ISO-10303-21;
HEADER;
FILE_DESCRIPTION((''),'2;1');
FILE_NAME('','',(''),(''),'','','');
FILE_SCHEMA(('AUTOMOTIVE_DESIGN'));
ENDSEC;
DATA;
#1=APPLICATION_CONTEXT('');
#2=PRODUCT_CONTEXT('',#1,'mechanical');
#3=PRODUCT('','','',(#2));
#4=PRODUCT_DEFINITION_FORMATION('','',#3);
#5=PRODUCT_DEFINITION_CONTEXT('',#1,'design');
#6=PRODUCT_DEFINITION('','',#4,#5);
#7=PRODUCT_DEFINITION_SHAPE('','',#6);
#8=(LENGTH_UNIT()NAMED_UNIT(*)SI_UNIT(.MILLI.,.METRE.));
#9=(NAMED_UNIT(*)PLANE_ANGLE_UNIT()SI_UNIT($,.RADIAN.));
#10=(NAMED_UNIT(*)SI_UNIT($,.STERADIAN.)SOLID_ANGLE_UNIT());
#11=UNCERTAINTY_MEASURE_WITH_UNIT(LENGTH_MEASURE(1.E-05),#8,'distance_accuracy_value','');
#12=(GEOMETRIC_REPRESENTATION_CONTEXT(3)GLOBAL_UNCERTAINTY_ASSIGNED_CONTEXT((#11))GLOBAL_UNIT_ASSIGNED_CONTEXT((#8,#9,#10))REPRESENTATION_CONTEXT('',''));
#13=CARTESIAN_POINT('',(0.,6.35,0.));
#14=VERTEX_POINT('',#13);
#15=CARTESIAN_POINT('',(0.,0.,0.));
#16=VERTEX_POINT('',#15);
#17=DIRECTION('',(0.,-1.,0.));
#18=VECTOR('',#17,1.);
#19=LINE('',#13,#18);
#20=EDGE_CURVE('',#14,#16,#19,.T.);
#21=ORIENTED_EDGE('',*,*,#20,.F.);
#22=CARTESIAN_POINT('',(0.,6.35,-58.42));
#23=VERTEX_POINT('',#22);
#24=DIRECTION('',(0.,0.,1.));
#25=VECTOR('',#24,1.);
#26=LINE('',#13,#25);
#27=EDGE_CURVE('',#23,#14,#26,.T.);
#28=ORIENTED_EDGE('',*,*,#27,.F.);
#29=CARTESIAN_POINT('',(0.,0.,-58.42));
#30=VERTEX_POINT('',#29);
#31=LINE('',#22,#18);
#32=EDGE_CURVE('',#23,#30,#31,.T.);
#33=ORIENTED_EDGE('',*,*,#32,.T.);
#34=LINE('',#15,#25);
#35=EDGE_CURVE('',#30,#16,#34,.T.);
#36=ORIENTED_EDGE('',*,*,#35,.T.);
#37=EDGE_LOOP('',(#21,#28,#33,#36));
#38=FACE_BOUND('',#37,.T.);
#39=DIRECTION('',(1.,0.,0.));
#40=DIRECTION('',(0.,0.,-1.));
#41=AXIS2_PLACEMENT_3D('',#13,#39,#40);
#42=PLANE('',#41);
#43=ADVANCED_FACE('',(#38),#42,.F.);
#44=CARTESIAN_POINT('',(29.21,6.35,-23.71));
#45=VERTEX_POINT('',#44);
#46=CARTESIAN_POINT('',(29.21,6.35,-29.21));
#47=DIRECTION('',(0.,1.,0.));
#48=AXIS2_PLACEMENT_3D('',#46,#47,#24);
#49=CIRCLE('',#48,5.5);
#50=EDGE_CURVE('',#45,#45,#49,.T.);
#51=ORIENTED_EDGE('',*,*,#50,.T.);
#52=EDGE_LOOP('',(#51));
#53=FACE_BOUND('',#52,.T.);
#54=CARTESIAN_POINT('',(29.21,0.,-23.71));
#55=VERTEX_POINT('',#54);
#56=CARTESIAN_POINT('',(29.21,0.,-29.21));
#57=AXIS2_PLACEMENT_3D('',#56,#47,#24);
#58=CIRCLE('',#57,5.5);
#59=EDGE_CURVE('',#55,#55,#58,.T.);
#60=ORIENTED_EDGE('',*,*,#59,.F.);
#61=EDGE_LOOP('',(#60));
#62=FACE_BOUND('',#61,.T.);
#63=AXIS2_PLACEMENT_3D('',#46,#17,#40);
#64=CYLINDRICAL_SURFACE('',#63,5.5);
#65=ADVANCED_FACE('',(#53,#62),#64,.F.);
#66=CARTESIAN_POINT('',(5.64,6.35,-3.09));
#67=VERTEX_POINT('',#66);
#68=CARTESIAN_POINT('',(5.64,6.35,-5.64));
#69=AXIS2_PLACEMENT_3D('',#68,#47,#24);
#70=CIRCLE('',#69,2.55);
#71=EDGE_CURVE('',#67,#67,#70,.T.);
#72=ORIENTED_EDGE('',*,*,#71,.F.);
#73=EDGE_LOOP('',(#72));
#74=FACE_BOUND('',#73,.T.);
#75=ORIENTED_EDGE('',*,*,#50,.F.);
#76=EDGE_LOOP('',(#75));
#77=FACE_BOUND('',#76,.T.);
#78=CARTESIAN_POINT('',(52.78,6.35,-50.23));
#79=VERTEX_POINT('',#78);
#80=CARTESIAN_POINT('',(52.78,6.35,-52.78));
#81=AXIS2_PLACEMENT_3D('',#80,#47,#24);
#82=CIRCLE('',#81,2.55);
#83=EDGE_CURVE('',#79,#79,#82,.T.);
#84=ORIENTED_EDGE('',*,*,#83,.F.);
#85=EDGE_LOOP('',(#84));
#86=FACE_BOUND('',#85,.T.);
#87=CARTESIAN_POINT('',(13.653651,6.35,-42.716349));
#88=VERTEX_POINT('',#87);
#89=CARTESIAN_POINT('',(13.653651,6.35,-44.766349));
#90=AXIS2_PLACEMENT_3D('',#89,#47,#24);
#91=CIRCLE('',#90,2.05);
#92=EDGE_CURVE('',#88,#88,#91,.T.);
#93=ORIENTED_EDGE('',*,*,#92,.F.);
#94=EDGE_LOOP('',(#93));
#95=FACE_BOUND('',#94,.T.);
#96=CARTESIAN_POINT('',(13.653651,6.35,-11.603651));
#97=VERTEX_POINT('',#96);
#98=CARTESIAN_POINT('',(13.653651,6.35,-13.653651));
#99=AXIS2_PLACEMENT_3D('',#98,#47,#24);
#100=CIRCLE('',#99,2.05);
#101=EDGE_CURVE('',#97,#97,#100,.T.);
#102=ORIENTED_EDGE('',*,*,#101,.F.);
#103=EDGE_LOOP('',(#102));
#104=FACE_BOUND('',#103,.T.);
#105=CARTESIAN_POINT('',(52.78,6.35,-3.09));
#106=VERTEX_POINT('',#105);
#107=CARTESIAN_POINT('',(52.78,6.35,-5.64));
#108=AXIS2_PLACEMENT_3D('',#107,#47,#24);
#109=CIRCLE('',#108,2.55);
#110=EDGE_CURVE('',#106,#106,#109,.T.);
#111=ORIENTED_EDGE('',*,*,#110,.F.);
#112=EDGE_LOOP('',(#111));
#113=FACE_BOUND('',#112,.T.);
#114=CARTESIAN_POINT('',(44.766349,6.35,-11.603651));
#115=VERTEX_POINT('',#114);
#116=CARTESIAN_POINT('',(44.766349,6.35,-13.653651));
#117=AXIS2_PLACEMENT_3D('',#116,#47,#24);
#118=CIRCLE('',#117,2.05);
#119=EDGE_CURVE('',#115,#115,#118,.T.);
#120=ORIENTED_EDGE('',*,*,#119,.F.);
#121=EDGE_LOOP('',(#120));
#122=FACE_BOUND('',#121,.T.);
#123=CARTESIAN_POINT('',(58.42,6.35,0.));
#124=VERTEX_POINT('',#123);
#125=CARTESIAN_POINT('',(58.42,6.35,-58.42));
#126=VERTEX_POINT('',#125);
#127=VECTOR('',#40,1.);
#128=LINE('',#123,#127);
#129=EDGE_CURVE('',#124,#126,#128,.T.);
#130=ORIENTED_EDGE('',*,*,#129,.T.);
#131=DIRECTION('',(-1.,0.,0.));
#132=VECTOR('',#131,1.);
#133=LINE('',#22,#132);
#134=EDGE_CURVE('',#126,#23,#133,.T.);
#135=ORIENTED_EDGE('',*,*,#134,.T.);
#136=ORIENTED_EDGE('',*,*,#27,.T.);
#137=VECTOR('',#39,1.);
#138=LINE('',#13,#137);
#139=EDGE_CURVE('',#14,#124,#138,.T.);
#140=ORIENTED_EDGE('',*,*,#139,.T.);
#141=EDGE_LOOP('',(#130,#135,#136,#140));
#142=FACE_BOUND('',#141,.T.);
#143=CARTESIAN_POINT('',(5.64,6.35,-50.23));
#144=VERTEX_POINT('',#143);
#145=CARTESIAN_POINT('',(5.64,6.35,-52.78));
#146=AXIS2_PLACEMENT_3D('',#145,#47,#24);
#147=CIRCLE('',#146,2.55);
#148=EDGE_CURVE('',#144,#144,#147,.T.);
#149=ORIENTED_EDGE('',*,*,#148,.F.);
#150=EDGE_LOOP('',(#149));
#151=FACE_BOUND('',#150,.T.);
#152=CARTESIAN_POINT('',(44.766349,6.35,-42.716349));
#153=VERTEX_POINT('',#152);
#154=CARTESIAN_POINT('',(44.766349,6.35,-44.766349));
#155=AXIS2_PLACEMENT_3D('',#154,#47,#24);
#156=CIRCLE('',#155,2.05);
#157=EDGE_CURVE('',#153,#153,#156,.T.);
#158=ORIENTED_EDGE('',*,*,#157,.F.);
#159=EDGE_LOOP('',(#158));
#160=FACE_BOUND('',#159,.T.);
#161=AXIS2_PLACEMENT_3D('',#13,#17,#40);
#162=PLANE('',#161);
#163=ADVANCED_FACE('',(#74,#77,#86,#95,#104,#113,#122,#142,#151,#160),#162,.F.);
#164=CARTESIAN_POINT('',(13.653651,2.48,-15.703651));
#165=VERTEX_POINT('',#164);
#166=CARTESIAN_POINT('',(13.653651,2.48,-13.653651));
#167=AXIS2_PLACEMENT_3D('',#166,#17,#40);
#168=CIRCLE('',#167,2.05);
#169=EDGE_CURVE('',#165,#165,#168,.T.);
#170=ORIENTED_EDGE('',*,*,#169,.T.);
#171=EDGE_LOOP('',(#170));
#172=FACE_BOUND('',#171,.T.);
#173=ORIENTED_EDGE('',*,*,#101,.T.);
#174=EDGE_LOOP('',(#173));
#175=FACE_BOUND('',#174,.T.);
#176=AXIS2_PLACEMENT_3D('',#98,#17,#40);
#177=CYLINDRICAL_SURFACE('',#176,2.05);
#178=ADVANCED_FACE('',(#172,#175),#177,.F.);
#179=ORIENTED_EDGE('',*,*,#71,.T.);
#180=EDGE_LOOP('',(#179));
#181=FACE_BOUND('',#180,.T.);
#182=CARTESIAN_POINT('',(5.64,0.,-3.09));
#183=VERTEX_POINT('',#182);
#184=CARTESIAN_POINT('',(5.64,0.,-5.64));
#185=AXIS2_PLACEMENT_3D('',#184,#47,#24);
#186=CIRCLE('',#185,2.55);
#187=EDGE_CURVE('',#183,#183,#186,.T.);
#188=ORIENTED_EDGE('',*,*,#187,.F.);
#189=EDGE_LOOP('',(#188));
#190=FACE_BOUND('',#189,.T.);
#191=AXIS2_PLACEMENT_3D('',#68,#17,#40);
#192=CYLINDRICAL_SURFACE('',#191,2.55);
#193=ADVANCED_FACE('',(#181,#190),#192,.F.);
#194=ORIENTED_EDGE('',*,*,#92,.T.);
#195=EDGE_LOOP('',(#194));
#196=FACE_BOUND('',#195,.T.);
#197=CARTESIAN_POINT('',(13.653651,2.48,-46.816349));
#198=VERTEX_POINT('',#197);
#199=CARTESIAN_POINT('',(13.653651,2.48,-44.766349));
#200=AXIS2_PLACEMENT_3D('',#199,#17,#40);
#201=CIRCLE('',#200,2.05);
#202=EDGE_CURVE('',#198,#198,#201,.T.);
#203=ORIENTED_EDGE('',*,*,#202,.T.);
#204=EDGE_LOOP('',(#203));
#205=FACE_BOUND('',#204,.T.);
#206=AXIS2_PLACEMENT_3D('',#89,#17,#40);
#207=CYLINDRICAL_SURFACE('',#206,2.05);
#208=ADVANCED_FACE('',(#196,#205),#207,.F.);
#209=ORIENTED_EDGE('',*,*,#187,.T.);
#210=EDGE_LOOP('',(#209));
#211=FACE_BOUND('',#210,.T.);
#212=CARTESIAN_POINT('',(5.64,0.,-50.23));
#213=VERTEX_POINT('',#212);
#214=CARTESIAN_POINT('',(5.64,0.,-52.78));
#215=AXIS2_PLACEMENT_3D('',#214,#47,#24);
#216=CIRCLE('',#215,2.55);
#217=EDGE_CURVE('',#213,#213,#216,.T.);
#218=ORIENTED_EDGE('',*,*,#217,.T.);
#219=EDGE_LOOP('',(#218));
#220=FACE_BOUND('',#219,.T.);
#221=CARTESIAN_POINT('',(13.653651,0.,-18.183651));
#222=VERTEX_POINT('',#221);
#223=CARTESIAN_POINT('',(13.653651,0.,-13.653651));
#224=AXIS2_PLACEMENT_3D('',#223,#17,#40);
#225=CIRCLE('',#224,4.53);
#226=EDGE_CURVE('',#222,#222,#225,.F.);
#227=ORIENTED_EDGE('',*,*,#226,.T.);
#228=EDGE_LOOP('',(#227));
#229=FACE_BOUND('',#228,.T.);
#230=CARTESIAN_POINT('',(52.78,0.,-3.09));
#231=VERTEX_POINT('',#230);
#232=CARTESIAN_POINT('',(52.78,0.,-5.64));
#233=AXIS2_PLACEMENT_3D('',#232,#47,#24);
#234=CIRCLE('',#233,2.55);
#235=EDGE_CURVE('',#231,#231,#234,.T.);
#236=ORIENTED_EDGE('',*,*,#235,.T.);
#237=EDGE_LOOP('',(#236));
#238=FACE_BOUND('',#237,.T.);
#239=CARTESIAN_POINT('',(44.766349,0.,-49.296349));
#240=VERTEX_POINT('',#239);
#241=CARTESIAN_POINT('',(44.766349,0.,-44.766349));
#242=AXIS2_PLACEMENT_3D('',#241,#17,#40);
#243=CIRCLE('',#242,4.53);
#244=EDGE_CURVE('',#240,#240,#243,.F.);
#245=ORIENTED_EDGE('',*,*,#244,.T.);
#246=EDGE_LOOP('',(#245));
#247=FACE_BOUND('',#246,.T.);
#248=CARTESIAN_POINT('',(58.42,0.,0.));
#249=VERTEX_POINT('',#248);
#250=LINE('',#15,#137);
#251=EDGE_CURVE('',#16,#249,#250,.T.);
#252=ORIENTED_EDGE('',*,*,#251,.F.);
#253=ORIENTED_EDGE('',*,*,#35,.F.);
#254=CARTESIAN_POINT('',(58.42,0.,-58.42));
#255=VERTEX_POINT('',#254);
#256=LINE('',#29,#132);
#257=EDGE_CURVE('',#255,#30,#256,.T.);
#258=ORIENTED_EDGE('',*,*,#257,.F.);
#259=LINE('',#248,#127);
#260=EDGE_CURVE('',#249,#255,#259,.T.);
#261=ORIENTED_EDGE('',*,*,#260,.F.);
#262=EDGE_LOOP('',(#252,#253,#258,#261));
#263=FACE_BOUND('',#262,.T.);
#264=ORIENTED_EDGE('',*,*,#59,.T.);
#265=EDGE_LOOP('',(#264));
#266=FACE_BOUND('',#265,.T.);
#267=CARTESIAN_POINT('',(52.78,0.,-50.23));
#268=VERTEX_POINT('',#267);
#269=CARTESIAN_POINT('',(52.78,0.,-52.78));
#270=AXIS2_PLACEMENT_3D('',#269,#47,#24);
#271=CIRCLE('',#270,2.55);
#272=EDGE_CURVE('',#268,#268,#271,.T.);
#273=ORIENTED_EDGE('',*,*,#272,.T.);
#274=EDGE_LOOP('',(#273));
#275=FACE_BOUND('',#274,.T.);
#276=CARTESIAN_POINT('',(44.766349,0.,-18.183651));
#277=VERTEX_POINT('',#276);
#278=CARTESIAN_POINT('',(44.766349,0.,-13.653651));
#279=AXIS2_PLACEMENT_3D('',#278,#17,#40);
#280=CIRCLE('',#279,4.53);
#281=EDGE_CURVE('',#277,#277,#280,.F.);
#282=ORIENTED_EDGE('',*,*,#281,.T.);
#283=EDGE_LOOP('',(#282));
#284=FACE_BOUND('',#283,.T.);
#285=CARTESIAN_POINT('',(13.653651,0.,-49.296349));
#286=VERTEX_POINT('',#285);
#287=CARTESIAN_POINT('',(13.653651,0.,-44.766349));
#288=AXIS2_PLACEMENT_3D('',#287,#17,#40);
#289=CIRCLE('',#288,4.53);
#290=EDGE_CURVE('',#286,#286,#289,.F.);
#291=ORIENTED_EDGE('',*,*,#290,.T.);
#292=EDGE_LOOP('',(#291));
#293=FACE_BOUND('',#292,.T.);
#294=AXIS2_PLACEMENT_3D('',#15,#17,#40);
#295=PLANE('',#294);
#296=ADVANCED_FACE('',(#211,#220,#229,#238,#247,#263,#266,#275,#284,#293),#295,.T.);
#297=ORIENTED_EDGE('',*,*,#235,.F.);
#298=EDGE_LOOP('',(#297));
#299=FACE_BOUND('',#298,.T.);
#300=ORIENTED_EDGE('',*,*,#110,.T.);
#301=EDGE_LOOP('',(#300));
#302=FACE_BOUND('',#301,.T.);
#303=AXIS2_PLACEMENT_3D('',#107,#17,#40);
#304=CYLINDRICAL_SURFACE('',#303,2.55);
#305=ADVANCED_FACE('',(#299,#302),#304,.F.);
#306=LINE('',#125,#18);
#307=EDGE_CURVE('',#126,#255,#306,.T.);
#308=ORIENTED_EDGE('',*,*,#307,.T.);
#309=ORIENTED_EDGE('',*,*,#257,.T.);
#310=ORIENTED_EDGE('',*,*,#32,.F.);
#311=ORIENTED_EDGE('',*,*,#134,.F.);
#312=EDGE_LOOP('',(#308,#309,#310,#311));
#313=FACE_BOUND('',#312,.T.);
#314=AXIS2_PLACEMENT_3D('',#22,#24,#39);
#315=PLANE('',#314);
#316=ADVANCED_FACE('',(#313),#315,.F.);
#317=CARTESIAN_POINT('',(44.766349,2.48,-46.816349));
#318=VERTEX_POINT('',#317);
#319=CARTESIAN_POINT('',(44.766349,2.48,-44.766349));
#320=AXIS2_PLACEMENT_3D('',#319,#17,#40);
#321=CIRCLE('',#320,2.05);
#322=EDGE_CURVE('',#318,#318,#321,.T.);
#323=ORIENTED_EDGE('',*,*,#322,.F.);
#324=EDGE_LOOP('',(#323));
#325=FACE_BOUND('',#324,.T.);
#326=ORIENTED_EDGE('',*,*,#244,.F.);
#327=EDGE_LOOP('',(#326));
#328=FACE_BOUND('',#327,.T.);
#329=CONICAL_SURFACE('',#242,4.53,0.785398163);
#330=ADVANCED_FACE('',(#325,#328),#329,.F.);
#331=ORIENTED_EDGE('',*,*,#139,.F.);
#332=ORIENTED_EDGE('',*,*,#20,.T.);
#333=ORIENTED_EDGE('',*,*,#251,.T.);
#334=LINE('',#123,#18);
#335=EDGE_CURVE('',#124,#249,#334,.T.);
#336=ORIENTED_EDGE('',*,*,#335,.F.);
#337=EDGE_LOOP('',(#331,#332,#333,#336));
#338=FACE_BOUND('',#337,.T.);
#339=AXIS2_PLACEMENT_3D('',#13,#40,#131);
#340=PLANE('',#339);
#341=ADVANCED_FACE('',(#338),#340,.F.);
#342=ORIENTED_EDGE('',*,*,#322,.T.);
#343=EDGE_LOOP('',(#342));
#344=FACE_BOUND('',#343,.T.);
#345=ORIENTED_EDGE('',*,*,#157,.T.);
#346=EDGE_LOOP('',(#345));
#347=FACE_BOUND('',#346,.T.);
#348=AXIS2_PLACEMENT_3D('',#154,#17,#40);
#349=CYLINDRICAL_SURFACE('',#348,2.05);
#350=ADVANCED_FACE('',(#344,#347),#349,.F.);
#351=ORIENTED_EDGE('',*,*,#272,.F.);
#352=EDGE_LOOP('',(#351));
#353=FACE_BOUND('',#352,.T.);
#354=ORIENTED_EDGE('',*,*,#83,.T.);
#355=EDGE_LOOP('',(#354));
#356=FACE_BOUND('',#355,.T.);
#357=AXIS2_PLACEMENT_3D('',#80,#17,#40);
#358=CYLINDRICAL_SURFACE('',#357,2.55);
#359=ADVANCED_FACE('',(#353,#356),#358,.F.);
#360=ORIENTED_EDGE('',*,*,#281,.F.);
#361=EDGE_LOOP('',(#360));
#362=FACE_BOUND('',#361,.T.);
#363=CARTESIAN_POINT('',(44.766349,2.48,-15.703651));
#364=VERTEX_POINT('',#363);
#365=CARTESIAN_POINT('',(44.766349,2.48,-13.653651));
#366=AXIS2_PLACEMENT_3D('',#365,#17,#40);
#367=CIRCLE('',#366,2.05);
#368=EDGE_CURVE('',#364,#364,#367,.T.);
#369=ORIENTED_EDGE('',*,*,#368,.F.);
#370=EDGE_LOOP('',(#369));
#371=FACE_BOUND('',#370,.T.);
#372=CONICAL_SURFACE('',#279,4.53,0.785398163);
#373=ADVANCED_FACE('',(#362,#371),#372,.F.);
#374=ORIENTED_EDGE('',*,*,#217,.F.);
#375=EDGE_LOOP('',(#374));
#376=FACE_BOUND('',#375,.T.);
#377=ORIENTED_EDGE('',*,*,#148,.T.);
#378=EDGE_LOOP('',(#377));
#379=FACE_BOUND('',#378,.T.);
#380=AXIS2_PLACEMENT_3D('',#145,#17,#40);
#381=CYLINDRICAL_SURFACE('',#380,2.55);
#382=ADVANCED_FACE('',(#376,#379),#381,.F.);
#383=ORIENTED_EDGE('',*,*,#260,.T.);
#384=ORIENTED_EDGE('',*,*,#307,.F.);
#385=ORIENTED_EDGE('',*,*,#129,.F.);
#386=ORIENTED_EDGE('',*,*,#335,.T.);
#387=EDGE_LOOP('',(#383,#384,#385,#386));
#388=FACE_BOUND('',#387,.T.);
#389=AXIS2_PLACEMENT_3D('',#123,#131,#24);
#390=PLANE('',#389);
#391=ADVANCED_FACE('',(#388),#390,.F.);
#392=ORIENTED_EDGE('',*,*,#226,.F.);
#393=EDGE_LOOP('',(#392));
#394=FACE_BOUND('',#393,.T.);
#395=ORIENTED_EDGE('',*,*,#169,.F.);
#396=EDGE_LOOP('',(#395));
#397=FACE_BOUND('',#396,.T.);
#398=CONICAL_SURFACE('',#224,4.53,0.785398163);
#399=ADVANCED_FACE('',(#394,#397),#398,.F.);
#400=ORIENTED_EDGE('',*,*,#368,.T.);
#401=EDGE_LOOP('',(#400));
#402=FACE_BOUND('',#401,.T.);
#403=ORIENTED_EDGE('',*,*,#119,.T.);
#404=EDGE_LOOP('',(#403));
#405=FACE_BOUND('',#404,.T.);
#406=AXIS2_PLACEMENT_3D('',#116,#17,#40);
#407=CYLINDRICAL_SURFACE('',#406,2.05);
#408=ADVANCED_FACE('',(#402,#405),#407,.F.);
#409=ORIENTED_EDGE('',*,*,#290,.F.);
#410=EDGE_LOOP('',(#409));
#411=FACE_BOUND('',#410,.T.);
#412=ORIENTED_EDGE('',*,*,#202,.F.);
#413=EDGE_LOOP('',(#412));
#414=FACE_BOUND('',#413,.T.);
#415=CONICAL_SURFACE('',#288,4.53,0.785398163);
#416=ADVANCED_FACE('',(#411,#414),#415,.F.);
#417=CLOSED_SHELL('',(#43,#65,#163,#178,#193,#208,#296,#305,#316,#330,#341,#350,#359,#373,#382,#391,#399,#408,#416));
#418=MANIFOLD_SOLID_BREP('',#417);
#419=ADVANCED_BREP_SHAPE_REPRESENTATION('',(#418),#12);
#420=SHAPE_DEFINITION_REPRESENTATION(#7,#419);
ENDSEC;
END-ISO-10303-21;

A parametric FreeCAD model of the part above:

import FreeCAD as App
import Part
import Sketcher
from FreeCAD import Vector
Q = App.Units.Quantity


def edges_at(feature, points):
    """Names of the edges that pass closest to the given points."""
    edges = feature.Shape.Edges
    near = lambda p: min(range(len(edges)), key=lambda i: edges[i].distToShape(Part.Vertex(*p))[0])
    return sorted({f"Edge{near(p) + 1}" for p in points})


def add_polygon(sketch, points):
    """Adds a closed chain of lines whose ends are joined by coincident constraints."""
    first, n = sketch.GeometryCount, len(points)
    for a, b in zip(points, points[1:] + points[:1]):
        sketch.addGeometry(Part.LineSegment(App.Vector(*a, 0), App.Vector(*b, 0)), False)
    for i in range(n):
        sketch.addConstraint(Sketcher.Constraint("Coincident", first + i, 2, first + (i + 1) % n, 1))

doc = App.newDocument("Part")
body = doc.addObject("PartDesign::Body", "Body")

sketch1 = body.newObject("Sketcher::SketchObject", "Sketch")
sketch1.AttachmentSupport = (doc.getObject("XZ_Plane"), [""])
sketch1.MapMode = "FlatFace"
add_polygon(sketch1, [(0, -58.4), (0, 0), (58.4, 0), (58.4, -58.4)])
sketch1.addGeometry(Part.Circle(Vector(5.6, -5.6, 0), Vector(0, 0, 1), 2.5), False)
sketch1.addGeometry(Part.Circle(Vector(13.7, -13.7, 0), Vector(0, 0, 1), 2), False)
sketch1.addGeometry(Part.Circle(Vector(52.8, -5.6, 0), Vector(0, 0, 1), 2.5), False)
sketch1.addGeometry(Part.Circle(Vector(44.8, -13.7, 0), Vector(0, 0, 1), 2), False)
sketch1.addGeometry(Part.Circle(Vector(13.7, -44.8, 0), Vector(0, 0, 1), 2), False)
sketch1.addGeometry(Part.Circle(Vector(5.6, -52.8, 0), Vector(0, 0, 1), 2.5), False)
sketch1.addGeometry(Part.Circle(Vector(29.2, -29.2, 0), Vector(0, 0, 1), 5.5), False)
sketch1.addGeometry(Part.Circle(Vector(44.8, -44.8, 0), Vector(0, 0, 1), 2), False)
sketch1.addGeometry(Part.Circle(Vector(52.8, -52.8, 0), Vector(0, 0, 1), 2.5), False)
sketch1.addConstraint(Sketcher.Constraint("Vertical", 0))
sketch1.addConstraint(Sketcher.Constraint("Horizontal", 1))
sketch1.addConstraint(Sketcher.Constraint("Vertical", 2))
sketch1.addConstraint(Sketcher.Constraint("Horizontal", 3))
sketch1.addConstraint(Sketcher.Constraint("Coincident", 0, 2, -1, 1))
sketch1.addConstraint(Sketcher.Constraint("Equal", 4, 6))
sketch1.addConstraint(Sketcher.Constraint("Equal", 5, 7))
sketch1.addConstraint(Sketcher.Constraint("Equal", 7, 8))
sketch1.addConstraint(Sketcher.Constraint("Equal", 6, 9))
sketch1.addConstraint(Sketcher.Constraint("Equal", 8, 11))
sketch1.addConstraint(Sketcher.Constraint("Equal", 9, 12))
sketch1.addConstraint(Sketcher.Constraint("Horizontal", 4, 3, 6, 3))
sketch1.addConstraint(Sketcher.Constraint("Horizontal", 5, 3, 7, 3))
sketch1.addConstraint(Sketcher.Constraint("Horizontal", 8, 3, 11, 3))
sketch1.addConstraint(Sketcher.Constraint("Horizontal", 9, 3, 12, 3))
sketch1.addConstraint(Sketcher.Constraint("Vertical", 5, 3, 8, 3))
sketch1.addConstraint(Sketcher.Constraint("Vertical", 4, 3, 9, 3))
sketch1.addConstraint(Sketcher.Constraint("Vertical", 7, 3, 11, 3))
sketch1.addConstraint(Sketcher.Constraint("Vertical", 6, 3, 12, 3))
sketch1.addConstraint(Sketcher.Constraint("Equal", 3, 0))
sketch1.addConstraint(Sketcher.Constraint("Diameter", 10, Q("11 mm")))
sketch1.addConstraint(Sketcher.Constraint("Diameter", 4, Q("5.1 mm")))
sketch1.addConstraint(Sketcher.Constraint("Diameter", 5, Q("4.1 mm")))
sketch1.addConstraint(Sketcher.Constraint("DistanceX", 1, 1, 1, 2, Q("58.42 mm")))
sketch1.addConstraint(Sketcher.Constraint("DistanceX", -1, 1, 4, 3, Q("5.64 mm")))
sketch1.addConstraint(Sketcher.Constraint("DistanceY", 4, 3, -1, 1, Q("5.64 mm")))
sketch1.addConstraint(Sketcher.Constraint("DistanceX", -1, 1, 6, 3, Q("52.78 mm")))
sketch1.addConstraint(Sketcher.Constraint("DistanceY", 9, 3, -1, 1, Q("52.78 mm")))
sketch1.addConstraint(Sketcher.Constraint("DistanceX", -1, 1, 10, 3, Q("29.21 mm")))
sketch1.addConstraint(Sketcher.Constraint("DistanceY", 10, 3, -1, 1, Q("29.21 mm")))
sketch1.addConstraint(Sketcher.Constraint("DistanceX", 5, 3, 7, 3, Q("31.112698 mm")))
sketch1.addConstraint(Sketcher.Constraint("DistanceY", 8, 3, 5, 3, Q("31.112698 mm")))
sketch1.addConstraint(Sketcher.Constraint("DistanceX", -1, 1, 5, 3, Q("13.653651 mm")))
sketch1.addConstraint(Sketcher.Constraint("DistanceY", 5, 3, -1, 1, Q("13.653651 mm")))
pad1 = body.newObject("PartDesign::Pad", "Pad")
pad1.Profile = sketch1
pad1.Length = 6.35
pad1.Reversed = True
doc.recompute()

chamfer = body.newObject("PartDesign::Chamfer", "Chamfer")
chamfer.Base = (pad1, edges_at(pad1, [
    (13.654, 0, -46.816),
    (44.766, 0, -46.816),
    (44.766, 0, -15.704),
    (13.654, 0, -15.704),
]))
chamfer.Size = 2.48

doc.recompute()
